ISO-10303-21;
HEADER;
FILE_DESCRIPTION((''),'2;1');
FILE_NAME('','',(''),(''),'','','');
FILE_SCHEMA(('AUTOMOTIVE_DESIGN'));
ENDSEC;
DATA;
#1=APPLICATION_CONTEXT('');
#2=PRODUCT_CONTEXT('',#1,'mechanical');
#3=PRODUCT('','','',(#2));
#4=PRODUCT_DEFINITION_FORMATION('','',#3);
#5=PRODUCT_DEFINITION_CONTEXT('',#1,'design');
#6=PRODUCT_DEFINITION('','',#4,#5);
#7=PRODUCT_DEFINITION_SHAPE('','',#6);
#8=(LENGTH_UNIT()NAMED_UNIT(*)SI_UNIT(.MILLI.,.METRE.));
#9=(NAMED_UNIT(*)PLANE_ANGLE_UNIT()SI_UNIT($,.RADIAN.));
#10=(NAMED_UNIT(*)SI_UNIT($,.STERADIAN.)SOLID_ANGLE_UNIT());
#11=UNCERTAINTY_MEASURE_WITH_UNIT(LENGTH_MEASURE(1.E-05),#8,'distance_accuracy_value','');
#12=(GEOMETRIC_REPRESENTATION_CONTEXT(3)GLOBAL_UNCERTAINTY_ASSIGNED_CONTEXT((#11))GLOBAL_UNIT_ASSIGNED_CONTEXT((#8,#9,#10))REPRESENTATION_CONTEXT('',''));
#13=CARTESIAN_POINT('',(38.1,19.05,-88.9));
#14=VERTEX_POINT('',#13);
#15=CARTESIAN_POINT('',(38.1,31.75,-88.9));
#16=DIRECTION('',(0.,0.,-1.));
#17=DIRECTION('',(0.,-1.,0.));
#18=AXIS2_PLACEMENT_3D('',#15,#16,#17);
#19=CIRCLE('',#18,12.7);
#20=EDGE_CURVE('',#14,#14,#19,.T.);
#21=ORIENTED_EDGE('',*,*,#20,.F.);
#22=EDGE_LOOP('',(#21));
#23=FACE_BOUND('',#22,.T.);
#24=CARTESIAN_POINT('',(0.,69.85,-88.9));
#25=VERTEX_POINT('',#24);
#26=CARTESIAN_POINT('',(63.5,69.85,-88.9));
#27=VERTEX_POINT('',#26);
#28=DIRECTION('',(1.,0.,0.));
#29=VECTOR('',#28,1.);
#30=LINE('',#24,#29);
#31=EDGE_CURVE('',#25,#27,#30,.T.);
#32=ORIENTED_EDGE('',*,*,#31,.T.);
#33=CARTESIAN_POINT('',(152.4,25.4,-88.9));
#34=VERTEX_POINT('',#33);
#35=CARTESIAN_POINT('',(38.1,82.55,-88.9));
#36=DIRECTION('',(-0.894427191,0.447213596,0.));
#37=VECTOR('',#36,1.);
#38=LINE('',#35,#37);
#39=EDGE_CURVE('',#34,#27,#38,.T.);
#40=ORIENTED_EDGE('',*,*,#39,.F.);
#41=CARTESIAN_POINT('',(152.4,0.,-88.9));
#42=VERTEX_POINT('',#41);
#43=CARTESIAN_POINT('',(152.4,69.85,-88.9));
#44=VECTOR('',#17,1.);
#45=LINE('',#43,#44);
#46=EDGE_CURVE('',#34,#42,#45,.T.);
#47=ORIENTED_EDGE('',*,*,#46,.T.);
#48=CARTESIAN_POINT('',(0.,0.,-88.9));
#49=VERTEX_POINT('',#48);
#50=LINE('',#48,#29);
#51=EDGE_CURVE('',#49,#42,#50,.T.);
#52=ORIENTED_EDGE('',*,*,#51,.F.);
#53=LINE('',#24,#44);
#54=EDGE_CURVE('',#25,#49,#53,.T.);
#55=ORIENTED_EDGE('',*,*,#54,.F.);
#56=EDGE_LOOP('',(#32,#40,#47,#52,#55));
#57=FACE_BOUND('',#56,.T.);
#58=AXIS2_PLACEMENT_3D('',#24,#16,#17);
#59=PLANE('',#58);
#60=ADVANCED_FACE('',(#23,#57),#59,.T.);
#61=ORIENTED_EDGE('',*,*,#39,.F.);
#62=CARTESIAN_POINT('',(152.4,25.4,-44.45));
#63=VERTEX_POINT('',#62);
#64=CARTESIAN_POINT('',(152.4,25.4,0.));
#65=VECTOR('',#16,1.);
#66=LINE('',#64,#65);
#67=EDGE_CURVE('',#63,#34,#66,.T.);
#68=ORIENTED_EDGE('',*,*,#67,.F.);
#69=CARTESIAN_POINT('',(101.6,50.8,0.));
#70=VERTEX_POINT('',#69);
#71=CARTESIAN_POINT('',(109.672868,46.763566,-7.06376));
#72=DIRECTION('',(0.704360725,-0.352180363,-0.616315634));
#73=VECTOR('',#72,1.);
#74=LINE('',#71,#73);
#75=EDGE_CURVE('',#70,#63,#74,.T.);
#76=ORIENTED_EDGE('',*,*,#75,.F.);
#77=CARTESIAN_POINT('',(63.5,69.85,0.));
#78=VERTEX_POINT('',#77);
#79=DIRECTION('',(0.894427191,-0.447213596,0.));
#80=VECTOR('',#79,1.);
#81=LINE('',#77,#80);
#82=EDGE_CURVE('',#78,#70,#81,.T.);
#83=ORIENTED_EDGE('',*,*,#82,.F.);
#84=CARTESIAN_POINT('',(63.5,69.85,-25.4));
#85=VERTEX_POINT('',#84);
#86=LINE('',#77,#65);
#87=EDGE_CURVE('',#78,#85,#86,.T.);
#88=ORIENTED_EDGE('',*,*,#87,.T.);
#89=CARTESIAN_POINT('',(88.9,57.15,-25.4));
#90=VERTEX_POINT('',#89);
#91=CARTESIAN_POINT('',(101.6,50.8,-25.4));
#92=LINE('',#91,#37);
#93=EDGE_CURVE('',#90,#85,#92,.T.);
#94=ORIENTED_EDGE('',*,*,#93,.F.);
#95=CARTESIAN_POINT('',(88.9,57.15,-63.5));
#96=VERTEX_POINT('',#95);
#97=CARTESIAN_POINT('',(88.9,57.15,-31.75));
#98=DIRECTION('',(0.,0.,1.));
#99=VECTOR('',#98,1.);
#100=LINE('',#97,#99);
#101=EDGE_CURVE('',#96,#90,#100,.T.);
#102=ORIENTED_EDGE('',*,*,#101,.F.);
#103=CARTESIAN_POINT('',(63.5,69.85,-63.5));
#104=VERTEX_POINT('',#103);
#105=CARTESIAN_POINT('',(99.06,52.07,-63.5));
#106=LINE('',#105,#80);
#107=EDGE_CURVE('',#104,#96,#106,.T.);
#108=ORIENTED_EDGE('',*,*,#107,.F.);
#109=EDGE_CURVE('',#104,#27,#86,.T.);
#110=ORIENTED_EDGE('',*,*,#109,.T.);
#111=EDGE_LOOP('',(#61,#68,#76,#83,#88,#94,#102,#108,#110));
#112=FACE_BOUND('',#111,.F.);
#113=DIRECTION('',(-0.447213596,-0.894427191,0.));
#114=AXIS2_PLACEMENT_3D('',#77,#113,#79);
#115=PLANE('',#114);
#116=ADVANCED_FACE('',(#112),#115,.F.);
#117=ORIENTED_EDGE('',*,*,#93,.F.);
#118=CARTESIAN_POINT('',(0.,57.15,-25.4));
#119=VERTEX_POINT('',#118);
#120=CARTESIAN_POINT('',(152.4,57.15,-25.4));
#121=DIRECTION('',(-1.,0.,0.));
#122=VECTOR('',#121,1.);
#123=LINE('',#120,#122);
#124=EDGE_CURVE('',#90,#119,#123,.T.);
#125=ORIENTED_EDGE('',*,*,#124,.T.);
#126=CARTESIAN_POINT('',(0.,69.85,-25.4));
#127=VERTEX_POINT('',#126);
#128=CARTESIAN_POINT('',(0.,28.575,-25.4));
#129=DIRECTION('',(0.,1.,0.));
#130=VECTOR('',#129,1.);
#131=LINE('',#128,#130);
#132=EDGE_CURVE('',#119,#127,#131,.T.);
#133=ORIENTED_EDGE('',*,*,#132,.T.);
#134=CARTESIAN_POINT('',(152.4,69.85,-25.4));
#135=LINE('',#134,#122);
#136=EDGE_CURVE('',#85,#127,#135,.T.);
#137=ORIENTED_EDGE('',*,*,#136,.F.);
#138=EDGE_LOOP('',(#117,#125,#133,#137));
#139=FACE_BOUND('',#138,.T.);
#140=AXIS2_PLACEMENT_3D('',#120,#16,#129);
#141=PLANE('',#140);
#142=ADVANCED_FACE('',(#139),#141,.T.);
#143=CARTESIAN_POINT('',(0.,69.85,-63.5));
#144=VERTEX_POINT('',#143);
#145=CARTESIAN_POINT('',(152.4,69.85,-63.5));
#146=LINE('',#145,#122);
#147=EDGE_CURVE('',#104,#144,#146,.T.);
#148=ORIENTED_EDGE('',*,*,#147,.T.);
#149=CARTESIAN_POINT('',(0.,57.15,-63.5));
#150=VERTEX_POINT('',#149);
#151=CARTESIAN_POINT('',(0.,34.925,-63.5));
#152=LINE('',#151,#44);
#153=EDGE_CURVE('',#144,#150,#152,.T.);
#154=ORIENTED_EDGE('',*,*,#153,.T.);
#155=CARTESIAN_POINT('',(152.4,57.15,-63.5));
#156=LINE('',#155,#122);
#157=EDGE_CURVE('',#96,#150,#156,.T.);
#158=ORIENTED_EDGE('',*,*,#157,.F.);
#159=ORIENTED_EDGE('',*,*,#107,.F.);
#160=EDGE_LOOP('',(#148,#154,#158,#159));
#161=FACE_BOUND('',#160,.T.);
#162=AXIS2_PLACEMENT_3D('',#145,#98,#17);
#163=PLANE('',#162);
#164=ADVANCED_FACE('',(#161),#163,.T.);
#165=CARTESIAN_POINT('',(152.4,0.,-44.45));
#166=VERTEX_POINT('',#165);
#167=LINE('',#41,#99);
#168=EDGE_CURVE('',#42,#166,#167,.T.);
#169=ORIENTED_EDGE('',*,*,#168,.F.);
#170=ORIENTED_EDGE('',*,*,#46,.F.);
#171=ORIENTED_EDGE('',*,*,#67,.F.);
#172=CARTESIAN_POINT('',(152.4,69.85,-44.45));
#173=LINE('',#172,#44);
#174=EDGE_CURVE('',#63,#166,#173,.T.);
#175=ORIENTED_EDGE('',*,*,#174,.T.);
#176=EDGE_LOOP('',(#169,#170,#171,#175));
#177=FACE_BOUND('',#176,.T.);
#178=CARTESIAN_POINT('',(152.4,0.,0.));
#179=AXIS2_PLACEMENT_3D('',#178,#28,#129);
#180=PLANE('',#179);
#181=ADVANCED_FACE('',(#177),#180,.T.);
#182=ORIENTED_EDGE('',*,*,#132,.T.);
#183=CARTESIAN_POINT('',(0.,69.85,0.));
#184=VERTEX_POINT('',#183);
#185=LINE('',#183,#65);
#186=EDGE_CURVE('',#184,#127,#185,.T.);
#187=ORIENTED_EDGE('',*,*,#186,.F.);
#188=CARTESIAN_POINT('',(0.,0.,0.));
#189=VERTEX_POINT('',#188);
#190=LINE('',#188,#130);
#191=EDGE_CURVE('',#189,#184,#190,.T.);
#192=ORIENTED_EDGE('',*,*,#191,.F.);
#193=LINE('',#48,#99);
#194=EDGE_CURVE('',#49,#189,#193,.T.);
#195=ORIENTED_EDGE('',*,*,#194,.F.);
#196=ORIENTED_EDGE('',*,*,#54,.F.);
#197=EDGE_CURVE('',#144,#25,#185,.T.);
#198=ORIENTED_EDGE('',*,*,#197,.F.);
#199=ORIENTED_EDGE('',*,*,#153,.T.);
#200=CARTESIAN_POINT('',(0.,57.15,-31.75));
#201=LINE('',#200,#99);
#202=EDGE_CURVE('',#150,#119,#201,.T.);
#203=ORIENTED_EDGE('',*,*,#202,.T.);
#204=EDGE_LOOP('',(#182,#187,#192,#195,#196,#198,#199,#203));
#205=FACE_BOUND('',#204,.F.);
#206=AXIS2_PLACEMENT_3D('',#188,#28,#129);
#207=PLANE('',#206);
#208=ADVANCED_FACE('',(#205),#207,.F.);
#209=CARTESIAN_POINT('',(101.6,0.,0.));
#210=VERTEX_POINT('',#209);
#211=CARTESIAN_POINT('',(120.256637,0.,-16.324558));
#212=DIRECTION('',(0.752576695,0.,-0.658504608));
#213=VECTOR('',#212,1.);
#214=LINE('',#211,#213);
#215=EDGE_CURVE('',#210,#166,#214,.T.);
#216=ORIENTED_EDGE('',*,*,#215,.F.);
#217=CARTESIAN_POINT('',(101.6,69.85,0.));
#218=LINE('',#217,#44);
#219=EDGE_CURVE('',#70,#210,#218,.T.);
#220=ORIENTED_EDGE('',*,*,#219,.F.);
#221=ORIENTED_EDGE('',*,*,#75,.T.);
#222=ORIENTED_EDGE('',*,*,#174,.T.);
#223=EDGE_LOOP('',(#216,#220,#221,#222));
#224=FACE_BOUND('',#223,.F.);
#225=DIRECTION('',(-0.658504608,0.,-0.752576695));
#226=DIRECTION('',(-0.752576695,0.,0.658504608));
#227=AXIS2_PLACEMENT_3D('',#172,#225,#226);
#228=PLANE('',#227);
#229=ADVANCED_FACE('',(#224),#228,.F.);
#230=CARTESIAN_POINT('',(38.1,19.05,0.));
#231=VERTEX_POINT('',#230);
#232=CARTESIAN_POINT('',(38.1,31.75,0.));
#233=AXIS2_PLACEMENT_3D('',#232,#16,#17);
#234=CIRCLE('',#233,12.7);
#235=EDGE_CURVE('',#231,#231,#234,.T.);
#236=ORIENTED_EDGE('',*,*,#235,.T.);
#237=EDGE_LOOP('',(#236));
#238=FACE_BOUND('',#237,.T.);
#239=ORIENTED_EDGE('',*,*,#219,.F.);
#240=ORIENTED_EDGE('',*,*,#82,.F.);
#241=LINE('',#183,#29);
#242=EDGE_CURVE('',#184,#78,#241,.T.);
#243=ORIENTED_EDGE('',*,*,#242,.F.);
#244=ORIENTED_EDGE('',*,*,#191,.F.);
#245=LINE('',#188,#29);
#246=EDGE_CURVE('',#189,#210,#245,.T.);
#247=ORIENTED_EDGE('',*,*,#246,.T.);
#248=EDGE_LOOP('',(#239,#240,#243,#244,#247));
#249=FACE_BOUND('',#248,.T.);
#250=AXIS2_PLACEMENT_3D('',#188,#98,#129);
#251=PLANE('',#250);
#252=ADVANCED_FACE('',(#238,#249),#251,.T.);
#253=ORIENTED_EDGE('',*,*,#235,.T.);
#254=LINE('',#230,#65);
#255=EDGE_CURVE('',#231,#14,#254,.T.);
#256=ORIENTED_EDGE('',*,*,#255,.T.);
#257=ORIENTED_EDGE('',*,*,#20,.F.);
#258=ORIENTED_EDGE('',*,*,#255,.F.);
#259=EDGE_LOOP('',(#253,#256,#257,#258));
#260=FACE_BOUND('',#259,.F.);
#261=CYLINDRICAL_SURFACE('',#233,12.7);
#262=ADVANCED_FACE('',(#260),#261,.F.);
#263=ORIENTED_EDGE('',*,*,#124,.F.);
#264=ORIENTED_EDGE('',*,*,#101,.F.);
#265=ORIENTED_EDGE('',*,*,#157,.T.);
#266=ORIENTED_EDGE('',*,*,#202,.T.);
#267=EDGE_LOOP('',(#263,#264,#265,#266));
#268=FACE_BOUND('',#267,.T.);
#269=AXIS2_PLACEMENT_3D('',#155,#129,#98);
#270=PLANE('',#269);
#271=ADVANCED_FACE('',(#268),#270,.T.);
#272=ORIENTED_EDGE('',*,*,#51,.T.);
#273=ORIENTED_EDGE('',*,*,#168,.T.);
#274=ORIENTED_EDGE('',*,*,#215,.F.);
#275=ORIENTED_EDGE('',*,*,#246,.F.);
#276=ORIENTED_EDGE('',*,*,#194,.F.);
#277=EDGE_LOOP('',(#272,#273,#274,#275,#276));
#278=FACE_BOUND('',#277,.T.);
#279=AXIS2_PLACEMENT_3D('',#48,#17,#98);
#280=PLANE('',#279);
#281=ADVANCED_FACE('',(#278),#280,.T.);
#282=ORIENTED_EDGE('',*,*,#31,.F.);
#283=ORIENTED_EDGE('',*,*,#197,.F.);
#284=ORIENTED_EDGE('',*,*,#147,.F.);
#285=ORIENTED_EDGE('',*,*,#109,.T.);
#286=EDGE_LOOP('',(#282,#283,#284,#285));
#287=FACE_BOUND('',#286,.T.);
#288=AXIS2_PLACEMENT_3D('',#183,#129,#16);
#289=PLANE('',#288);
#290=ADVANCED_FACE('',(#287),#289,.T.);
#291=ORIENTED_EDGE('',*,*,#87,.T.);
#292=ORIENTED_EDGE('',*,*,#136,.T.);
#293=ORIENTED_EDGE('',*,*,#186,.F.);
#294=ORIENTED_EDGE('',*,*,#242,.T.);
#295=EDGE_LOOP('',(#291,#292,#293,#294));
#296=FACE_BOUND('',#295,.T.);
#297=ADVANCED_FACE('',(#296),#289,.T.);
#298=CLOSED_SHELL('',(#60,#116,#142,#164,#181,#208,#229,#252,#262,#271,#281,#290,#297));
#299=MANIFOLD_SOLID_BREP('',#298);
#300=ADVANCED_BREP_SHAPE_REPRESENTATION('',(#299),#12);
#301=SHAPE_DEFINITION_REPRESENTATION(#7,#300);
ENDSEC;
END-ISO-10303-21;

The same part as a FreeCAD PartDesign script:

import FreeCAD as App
import Part
import Sketcher

V = App.Vector
Q = App.Units.Quantity

doc = App.newDocument("Part")
body = doc.addObject("PartDesign::Body", "Body")

sketch1 = doc.addObject("Sketcher::SketchObject", "Sketch")
body.addObject(sketch1)
sketch1.AttachmentSupport = (doc.YZ_Plane, [""])
sketch1.MapMode = "FlatFace"
sketch1.addGeometry([
    Part.LineSegment(V(70, 0, 0), V(0, 0, 0)),
    Part.LineSegment(V(0, 0, 0), V(0, -89, 0)),
    Part.LineSegment(V(0, -89, 0), V(70, -89, 0)),
    Part.LineSegment(V(70, -89, 0), V(70, 0, 0)),
], False)
sketch1.addConstraint([
    Sketcher.Constraint("Coincident", 0, 2, 1, 1),
    Sketcher.Constraint("Coincident", 1, 2, 2, 1),
    Sketcher.Constraint("Coincident", 2, 2, 3, 1),
    Sketcher.Constraint("Coincident", 3, 2, 0, 1),
    Sketcher.Constraint("Horizontal", 0),
    Sketcher.Constraint("Vertical", 1),
    Sketcher.Constraint("Horizontal", 2),
    Sketcher.Constraint("Vertical", 3),
    Sketcher.Constraint("Coincident", 0, 2, -1, 1),
    Sketcher.Constraint("DistanceY", 1, 2, 1, 1, Q("3.5 in")),
    Sketcher.Constraint("DistanceX", 0, 2, 0, 1, Q("2.75 in")),
])
pad1 = doc.addObject("PartDesign::Pad", "Pad")
body.addObject(pad1)
pad1.Profile = sketch1
pad1.Length = Q("6 in")

sketch2 = doc.addObject("Sketcher::SketchObject", "Sketch001")
body.addObject(sketch2)
sketch2.AttachmentSupport = (doc.YZ_Plane, [""])
sketch2.MapMode = "FlatFace"
sketch2.AttachmentOffset = App.Placement(V(0, 0, 6 * 25.4), App.Rotation())
sketch2.addGeometry([
    Part.LineSegment(V(57, -64, 0), V(70, -64, 0)),
    Part.LineSegment(V(70, -64, 0), V(70, -25, 0)),
    Part.LineSegment(V(70, -25, 0), V(57, -25, 0)),
    Part.LineSegment(V(57, -25, 0), V(57, -64, 0)),
], False)
sketch2.addConstraint([
    Sketcher.Constraint("Coincident", 0, 2, 1, 1),
    Sketcher.Constraint("Coincident", 1, 2, 2, 1),
    Sketcher.Constraint("Coincident", 2, 2, 3, 1),
    Sketcher.Constraint("Coincident", 3, 2, 0, 1),
    Sketcher.Constraint("Horizontal", 0),
    Sketcher.Constraint("Vertical", 1),
    Sketcher.Constraint("Horizontal", 2),
    Sketcher.Constraint("Vertical", 3),
    Sketcher.Constraint("DistanceX", 0, 1, 0, 2, Q("0.5 in")),
    Sketcher.Constraint("DistanceY", 1, 1, 1, 2, Q("1.5 in")),
    Sketcher.Constraint("DistanceY", 1, 2, -1, 1, Q("1 in")),
    Sketcher.Constraint("DistanceX", -1, 1, 0, 2, Q("2.75 in")),
])
pocket1 = doc.addObject("PartDesign::Pocket", "Pocket")
body.addObject(pocket1)
pocket1.Profile = sketch2
pocket1.Type = "ThroughAll"

sketch3 = doc.addObject("Sketcher::SketchObject", "Sketch002")
body.addObject(sketch3)
sketch3.AttachmentSupport = (doc.XY_Plane, [""])
sketch3.MapMode = "FlatFace"
sketch3.addGeometry([
    Part.LineSegment(V(152, 70, 0), V(64, 70, 0)),
    Part.LineSegment(V(64, 70, 0), V(152, 25, 0)),
    Part.LineSegment(V(152, 25, 0), V(152, 70, 0)),
], False)
sketch3.addConstraint([
    Sketcher.Constraint("Coincident", 0, 2, 1, 1),
    Sketcher.Constraint("Coincident", 1, 2, 2, 1),
    Sketcher.Constraint("Coincident", 2, 2, 0, 1),
    Sketcher.Constraint("Horizontal", 0),
    Sketcher.Constraint("Vertical", 2),
    Sketcher.Constraint("DistanceY", -1, 1, 1, 2, Q("1 in")),
    Sketcher.Constraint("DistanceX", -1, 1, 0, 2, Q("2.5 in")),
    Sketcher.Constraint("DistanceX", 0, 2, 0, 1, Q("3.5 in")),
    Sketcher.Constraint("DistanceY", 2, 1, 2, 2, Q("1.75 in")),
])
pocket2 = doc.addObject("PartDesign::Pocket", "Pocket001")
body.addObject(pocket2)
pocket2.Profile = sketch3
pocket2.Type = "ThroughAll"

sketch4 = doc.addObject("Sketcher::SketchObject", "Sketch003")
body.addObject(sketch4)
sketch4.AttachmentSupport = (doc.XZ_Plane, [""])
sketch4.MapMode = "FlatFace"
sketch4.AttachmentOffset = App.Placement(V(0, 0, -2.75 * 25.4), App.Rotation())
sketch4.addGeometry([
    Part.LineSegment(V(152, 0, 0), V(152, -44, 0)),
    Part.LineSegment(V(152, -44, 0), V(102, 0, 0)),
    Part.LineSegment(V(102, 0, 0), V(152, 0, 0)),
], False)
sketch4.addConstraint([
    Sketcher.Constraint("Coincident", 0, 2, 1, 1),
    Sketcher.Constraint("Coincident", 1, 2, 2, 1),
    Sketcher.Constraint("Coincident", 2, 2, 0, 1),
    Sketcher.Constraint("Vertical", 0),
    Sketcher.Constraint("Horizontal", 2),
    Sketcher.Constraint("PointOnObject", 1, 2, -1),
    Sketcher.Constraint("DistanceX", -1, 1, 1, 2, Q("4 in")),
    Sketcher.Constraint("DistanceY", 0, 2, 0, 1, Q("1.75 in")),
    Sketcher.Constraint("DistanceX", 2, 1, 2, 2, Q("2 in")),
])
pocket3 = doc.addObject("PartDesign::Pocket", "Pocket002")
body.addObject(pocket3)
pocket3.Profile = sketch4
pocket3.Type = "ThroughAll"
pocket3.Reversed = True

sketch5 = doc.addObject("Sketcher::SketchObject", "Sketch004")
body.addObject(sketch5)
sketch5.AttachmentSupport = (doc.XY_Plane, [""])
sketch5.MapMode = "FlatFace"
sketch5.addGeometry(Part.Circle(V(38, 32, 0), V(0, 0, 1), 13), False)
sketch5.addConstraint([
    Sketcher.Constraint("Diameter", 0, Q("1 in")),
    Sketcher.Constraint("DistanceX", -1, 1, 0, 3, Q("1.5 in")),
    Sketcher.Constraint("DistanceY", -1, 1, 0, 3, Q("1.25 in")),
])
doc.recompute()
hole = doc.addObject("PartDesign::Hole", "Hole")
body.addObject(hole)
hole.Profile = sketch5
hole.ThreadType = "None"
hole.Diameter = Q("1 in")
hole.DepthType = "ThroughAll"

doc.recompute()
